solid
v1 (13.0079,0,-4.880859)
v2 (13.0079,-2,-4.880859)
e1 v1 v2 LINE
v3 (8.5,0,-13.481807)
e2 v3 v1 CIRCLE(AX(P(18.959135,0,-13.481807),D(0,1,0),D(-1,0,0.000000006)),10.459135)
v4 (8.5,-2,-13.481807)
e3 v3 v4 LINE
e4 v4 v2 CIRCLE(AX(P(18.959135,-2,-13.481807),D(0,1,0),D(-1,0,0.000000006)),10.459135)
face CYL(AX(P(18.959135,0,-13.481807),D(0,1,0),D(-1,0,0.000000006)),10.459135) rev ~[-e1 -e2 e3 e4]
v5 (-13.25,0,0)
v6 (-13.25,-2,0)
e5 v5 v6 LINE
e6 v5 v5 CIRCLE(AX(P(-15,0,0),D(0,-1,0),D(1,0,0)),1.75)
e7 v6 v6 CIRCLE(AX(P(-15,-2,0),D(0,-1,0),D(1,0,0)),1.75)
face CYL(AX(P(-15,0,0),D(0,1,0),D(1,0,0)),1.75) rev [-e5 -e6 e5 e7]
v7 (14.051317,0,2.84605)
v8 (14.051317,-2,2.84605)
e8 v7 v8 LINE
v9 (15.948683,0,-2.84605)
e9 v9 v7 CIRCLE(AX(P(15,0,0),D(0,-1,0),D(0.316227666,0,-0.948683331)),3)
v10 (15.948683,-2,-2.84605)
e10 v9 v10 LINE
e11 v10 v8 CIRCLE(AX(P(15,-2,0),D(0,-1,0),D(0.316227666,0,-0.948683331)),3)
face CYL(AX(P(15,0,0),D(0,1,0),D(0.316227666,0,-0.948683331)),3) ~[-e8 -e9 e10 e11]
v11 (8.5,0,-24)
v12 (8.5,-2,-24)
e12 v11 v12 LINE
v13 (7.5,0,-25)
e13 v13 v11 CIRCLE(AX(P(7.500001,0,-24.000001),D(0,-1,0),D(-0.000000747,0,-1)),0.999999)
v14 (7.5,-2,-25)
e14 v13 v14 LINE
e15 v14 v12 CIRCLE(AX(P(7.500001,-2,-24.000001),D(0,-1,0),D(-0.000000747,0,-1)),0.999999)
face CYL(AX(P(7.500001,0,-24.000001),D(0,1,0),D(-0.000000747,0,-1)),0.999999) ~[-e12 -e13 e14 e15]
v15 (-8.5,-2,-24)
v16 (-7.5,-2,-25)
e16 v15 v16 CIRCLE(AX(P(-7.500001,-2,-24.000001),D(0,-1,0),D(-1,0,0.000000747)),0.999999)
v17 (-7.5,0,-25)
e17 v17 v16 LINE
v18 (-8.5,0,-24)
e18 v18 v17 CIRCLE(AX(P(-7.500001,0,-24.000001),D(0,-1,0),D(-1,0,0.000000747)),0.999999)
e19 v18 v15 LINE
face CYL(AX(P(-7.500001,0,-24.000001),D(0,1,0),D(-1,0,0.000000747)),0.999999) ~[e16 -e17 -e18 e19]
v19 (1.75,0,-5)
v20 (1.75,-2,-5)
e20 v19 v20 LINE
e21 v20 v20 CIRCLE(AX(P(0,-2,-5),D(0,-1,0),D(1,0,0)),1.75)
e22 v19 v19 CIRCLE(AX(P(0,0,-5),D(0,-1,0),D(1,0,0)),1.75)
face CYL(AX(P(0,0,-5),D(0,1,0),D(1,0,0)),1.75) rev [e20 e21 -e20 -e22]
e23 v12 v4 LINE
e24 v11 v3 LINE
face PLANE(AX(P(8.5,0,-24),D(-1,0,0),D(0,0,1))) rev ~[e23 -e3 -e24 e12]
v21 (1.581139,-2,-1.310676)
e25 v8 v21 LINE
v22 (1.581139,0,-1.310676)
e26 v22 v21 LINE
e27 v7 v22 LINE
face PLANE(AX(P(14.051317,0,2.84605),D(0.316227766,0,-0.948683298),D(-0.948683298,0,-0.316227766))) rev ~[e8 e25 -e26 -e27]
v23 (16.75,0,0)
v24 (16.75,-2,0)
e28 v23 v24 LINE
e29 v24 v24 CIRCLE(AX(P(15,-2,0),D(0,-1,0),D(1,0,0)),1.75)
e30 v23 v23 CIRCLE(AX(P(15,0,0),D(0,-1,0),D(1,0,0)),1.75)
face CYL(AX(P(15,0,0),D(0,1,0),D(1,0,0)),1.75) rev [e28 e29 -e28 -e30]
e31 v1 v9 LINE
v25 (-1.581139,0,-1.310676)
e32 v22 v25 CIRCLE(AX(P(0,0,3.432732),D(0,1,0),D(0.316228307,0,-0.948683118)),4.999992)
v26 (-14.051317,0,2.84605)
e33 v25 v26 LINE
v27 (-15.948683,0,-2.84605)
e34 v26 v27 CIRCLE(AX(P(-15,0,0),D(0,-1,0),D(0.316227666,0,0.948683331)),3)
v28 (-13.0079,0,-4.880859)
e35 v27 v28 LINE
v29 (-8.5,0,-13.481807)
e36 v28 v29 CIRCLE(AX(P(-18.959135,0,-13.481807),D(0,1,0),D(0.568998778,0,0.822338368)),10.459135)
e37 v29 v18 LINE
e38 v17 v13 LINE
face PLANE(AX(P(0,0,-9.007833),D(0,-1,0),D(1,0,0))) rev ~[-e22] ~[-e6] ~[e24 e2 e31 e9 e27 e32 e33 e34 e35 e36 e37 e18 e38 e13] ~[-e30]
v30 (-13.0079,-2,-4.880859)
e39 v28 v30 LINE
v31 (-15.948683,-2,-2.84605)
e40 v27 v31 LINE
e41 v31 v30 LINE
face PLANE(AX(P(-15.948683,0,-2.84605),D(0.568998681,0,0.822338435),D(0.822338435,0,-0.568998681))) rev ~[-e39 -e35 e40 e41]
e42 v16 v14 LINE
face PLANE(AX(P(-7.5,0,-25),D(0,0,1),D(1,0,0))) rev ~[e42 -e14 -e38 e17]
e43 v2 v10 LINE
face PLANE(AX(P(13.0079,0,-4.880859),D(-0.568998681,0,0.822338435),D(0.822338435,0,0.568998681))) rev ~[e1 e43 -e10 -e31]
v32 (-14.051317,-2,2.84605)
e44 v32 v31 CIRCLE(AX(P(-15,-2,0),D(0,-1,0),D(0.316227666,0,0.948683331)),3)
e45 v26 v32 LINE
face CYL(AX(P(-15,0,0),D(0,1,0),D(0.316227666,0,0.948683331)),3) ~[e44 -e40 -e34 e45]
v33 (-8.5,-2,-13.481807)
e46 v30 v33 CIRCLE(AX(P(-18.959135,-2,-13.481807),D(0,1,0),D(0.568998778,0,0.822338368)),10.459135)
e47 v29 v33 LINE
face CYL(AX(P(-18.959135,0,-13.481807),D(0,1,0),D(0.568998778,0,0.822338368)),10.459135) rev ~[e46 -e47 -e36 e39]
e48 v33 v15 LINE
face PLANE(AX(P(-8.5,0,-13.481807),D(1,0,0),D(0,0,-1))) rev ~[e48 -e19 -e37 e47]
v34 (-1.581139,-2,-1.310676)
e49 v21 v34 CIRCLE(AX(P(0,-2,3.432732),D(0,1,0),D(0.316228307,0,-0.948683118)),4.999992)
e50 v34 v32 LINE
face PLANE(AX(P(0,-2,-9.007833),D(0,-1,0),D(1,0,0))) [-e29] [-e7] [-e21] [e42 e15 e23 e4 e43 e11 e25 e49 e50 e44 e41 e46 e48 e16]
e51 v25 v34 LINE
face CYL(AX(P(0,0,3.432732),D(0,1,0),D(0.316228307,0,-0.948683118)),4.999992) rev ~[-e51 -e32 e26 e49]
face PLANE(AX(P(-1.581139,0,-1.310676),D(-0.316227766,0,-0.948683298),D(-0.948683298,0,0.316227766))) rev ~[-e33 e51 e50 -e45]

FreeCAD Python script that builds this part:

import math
import FreeCAD as App
import Part
import Sketcher
from FreeCAD import Vector

doc = App.newDocument("Part")
body = doc.addObject("PartDesign::Body", "Body")

# Sketch on XZ plane
sketch1 = doc.addObject("Sketcher::SketchObject", "Sketch")
body.addObject(sketch1)
sketch1.AttachmentSupport = (doc.XZ_Plane, [""])
sketch1.MapMode = "FlatFace"
sketch1.addGeometry(Part.LineSegment(Vector(13, -4.9, 0), Vector(15.9, -2.8, 0)), False)
sketch1.addGeometry(Part.ArcOfCircle(Part.Circle(Vector(15, 0, 0), Vector(0, 0, 1), 3), math.radians(-72), math.radians(108)), False)
sketch1.addGeometry(Part.LineSegment(Vector(14.1, 2.8, 0), Vector(1.6, -1.3, 0)), False)
sketch1.addGeometry(Part.ArcOfCircle(Part.Circle(Vector(0, 3.4, 0), Vector(0, 0, 1), 5), math.radians(-108), math.radians(-72)), False)
sketch1.addGeometry(Part.LineSegment(Vector(-1.6, -1.3, 0), Vector(-14.1, 2.8, 0)), False)
sketch1.addGeometry(Part.ArcOfCircle(Part.Circle(Vector(-15, 0, 0), Vector(0, 0, 1), 3), math.radians(72), math.radians(252)), False)
sketch1.addGeometry(Part.LineSegment(Vector(-15.9, -2.8, 0), Vector(-13, -4.9, 0)), False)
sketch1.addGeometry(Part.ArcOfCircle(Part.Circle(Vector(-19, -13.5, 0), Vector(0, 0, 1), 10.5), math.radians(0), math.radians(55)), False)
sketch1.addGeometry(Part.LineSegment(Vector(-8.5, -13.5, 0), Vector(-8.5, -24, 0)), False)
sketch1.addGeometry(Part.ArcOfCircle(Part.Circle(Vector(-7.5, -24, 0), Vector(0, 0, 1), 1), math.radians(180), math.radians(270)), False)
sketch1.addGeometry(Part.LineSegment(Vector(-7.5, -25, 0), Vector(7.5, -25, 0)), False)
sketch1.addGeometry(Part.ArcOfCircle(Part.Circle(Vector(7.5, -24, 0), Vector(0, 0, 1), 1), math.radians(-90), math.radians(0)), False)
sketch1.addGeometry(Part.LineSegment(Vector(8.5, -24, 0), Vector(8.5, -13.5, 0)), False)
sketch1.addGeometry(Part.ArcOfCircle(Part.Circle(Vector(19, -13.5, 0), Vector(0, 0, 1), 10.5), math.radians(125), math.radians(180)), False)
sketch1.addGeometry(Part.Circle(Vector(0, -5, 0), Vector(0, 0, 1), 1.8), False)
sketch1.addGeometry(Part.Circle(Vector(-15, 0, 0), Vector(0, 0, 1), 1.8), False)
sketch1.addGeometry(Part.Circle(Vector(15, 0, 0), Vector(0, 0, 1), 1.8), False)
sketch1.addConstraint(Sketcher.Constraint("Coincident", 0, 2, 1, 1))
sketch1.addConstraint(Sketcher.Constraint("Tangent", 1, 2, 2, 1))
sketch1.addConstraint(Sketcher.Constraint("Tangent", 2, 2, 3, 2))
sketch1.addConstraint(Sketcher.Constraint("Tangent", 3, 1, 4, 1))
sketch1.addConstraint(Sketcher.Constraint("Tangent", 4, 2, 5, 1))
sketch1.addConstraint(Sketcher.Constraint("Coincident", 5, 2, 6, 1))
sketch1.addConstraint(Sketcher.Constraint("Tangent", 6, 2, 7, 2))
sketch1.addConstraint(Sketcher.Constraint("Tangent", 7, 1, 8, 1))
sketch1.addConstraint(Sketcher.Constraint("Tangent", 8, 2, 9, 1))
sketch1.addConstraint(Sketcher.Constraint("Tangent", 9, 2, 10, 1))
sketch1.addConstraint(Sketcher.Constraint("Tangent", 10, 2, 11, 1))
sketch1.addConstraint(Sketcher.Constraint("Tangent", 11, 2, 12, 1))
sketch1.addConstraint(Sketcher.Constraint("Tangent", 12, 2, 13, 2))
sketch1.addConstraint(Sketcher.Constraint("Tangent", 13, 1, 0, 1))
sketch1.addConstraint(Sketcher.Constraint("Vertical", 8))
sketch1.addConstraint(Sketcher.Constraint("Horizontal", 10))
sketch1.addConstraint(Sketcher.Constraint("Vertical", 12))
sketch1.addConstraint(Sketcher.Constraint("Coincident", 15, 3, 5, 3))
sketch1.addConstraint(Sketcher.Constraint("Coincident", 16, 3, 1, 3))
sketch1.addConstraint(Sketcher.Constraint("Equal", 1, 5))
sketch1.addConstraint(Sketcher.Constraint("Equal", 9, 11))
sketch1.addConstraint(Sketcher.Constraint("Equal", 7, 13))
sketch1.addConstraint(Sketcher.Constraint("Equal", 14, 15))
sketch1.addConstraint(Sketcher.Constraint("Equal", 15, 16))
sketch1.addConstraint(Sketcher.Constraint("Symmetric", 1, 3, 5, 3, -1, 1))
sketch1.addConstraint(Sketcher.Constraint("Symmetric", 7, 3, 13, 3, -2))
sketch1.addConstraint(Sketcher.Constraint("Symmetric", 2, 2, 3, 1, -2))
sketch1.addConstraint(Sketcher.Constraint("PointOnObject", 14, 3, -2))
sketch1.addConstraint(Sketcher.Constraint("Horizontal", 0, 2, 5, 2))
sketch1.addConstraint(Sketcher.Constraint("Radius", 1, 3.0))
sketch1.addConstraint(Sketcher.Constraint("Radius", 9, 0.999999))
sketch1.addConstraint(Sketcher.Constraint("Diameter", 14, 3.5))
sketch1.addConstraint(Sketcher.Constraint("DistanceX", 10, 1, 10, 2, 15.0))
sketch1.addConstraint(Sketcher.Constraint("DistanceX", -1, 1, 1, 3, 15.0))
sketch1.addConstraint(Sketcher.Constraint("DistanceY", 9, 3, -1, 1, 24.000001))
sketch1.addConstraint(Sketcher.Constraint("DistanceY", 14, 3, -1, 1, 5.0))
sketch1.addConstraint(Sketcher.Constraint("Radius", 3, 4.999992))
sketch1.addConstraint(Sketcher.Constraint("Radius", 7, 10.459135))
sketch1.addConstraint(Sketcher.Constraint("DistanceX", 6, 2, -1, 1, 13.0079))
sketch1.addConstraint(Sketcher.Constraint("DistanceY", 0, 2, 1, 2, 5.6921))
sketch1.addConstraint(Sketcher.Constraint("Distance", 2, 13.144722))
pad1 = doc.addObject("PartDesign::Pad", "Pad")
body.addObject(pad1)
pad1.Profile = sketch1
pad1.Length = 2

doc.recompute()
